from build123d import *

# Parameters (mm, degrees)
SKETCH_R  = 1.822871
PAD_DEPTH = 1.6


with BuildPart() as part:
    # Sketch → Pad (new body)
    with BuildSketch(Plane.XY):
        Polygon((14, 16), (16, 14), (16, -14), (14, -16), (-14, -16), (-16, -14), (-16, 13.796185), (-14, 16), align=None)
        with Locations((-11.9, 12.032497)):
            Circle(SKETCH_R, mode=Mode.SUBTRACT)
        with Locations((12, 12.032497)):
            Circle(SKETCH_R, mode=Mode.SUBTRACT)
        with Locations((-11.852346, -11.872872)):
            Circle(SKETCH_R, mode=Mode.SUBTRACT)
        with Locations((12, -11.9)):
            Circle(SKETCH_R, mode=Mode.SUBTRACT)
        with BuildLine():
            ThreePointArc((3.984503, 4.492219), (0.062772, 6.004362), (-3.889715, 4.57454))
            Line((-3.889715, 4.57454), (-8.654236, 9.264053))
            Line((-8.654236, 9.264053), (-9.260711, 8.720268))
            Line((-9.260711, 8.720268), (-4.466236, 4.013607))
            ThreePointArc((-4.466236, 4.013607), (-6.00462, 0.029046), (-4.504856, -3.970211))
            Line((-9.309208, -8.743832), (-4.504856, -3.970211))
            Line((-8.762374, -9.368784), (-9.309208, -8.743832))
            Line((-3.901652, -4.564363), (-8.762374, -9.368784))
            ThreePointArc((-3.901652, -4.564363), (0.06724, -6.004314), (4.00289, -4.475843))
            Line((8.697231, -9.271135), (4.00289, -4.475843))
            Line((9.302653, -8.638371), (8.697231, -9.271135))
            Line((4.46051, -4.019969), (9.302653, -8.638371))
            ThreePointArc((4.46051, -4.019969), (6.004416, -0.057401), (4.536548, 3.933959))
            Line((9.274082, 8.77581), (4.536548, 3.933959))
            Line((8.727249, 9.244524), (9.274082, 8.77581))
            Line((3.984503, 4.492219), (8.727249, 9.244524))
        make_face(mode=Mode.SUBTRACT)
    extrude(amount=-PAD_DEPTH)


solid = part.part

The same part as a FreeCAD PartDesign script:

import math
import FreeCAD as App
import Part
import Sketcher
from FreeCAD import Vector

doc = App.newDocument("Part")
body = doc.addObject("PartDesign::Body", "Body")

sketch1 = body.newObject("Sketcher::SketchObject", "Sketch")
sketch1.AttachmentSupport = (doc.getObject("XY_Plane"), [""])
sketch1.MapMode = "FlatFace"
sketch1.addGeometry(Part.LineSegment(Vector(16, 14, 0), Vector(14, 16, 0)), False)
sketch1.addGeometry(Part.LineSegment(Vector(14, 16, 0), Vector(-14, 16, 0)), False)
sketch1.addGeometry(Part.LineSegment(Vector(-14, 16, 0), Vector(-16, 13.8, 0)), False)
sketch1.addGeometry(Part.LineSegment(Vector(-16, 13.8, 0), Vector(-16, -14, 0)), False)
sketch1.addGeometry(Part.LineSegment(Vector(-16, -14, 0), Vector(-14, -16, 0)), False)
sketch1.addGeometry(Part.LineSegment(Vector(-14, -16, 0), Vector(14, -16, 0)), False)
sketch1.addGeometry(Part.LineSegment(Vector(14, -16, 0), Vector(16, -14, 0)), False)
sketch1.addGeometry(Part.LineSegment(Vector(16, -14, 0), Vector(16, 14, 0)), False)
sketch1.addGeometry(Part.Circle(Vector(12, -11.9, 0), Vector(0, 0, 1), 1.8), False)
sketch1.addGeometry(Part.Circle(Vector(-11.9, -11.9, 0), Vector(0, 0, 1), 1.8), False)
sketch1.addGeometry(Part.LineSegment(Vector(4, 4.5, 0), Vector(8.7, 9.2, 0)), False)
sketch1.addGeometry(Part.LineSegment(Vector(8.7, 9.2, 0), Vector(9.3, 8.8, 0)), False)
sketch1.addGeometry(Part.LineSegment(Vector(9.3, 8.8, 0), Vector(4.5, 3.9, 0)), False)
sketch1.addGeometry(Part.ArcOfCircle(Part.Circle(Vector(0, 0, 0), Vector(0, 0, 1), 6), math.radians(-42), math.radians(41)), False)
sketch1.addGeometry(Part.LineSegment(Vector(4.5, -4, 0), Vector(9.3, -8.6, 0)), False)
sketch1.addGeometry(Part.LineSegment(Vector(9.3, -8.6, 0), Vector(8.7, -9.3, 0)), False)
sketch1.addGeometry(Part.LineSegment(Vector(8.7, -9.3, 0), Vector(4, -4.5, 0)), False)
sketch1.addGeometry(Part.ArcOfCircle(Part.Circle(Vector(0, 0, 0), Vector(0, 0, 1), 6), math.radians(-131), math.radians(-48)), False)
sketch1.addGeometry(Part.LineSegment(Vector(-3.9, -4.6, 0), Vector(-8.8, -9.4, 0)), False)
sketch1.addGeometry(Part.LineSegment(Vector(-8.8, -9.4, 0), Vector(-9.3, -8.7, 0)), False)
sketch1.addGeometry(Part.LineSegment(Vector(-9.3, -8.7, 0), Vector(-4.5, -4, 0)), False)
sketch1.addGeometry(Part.ArcOfCircle(Part.Circle(Vector(0, 0, 0), Vector(0, 0, 1), 6), math.radians(138), math.radians(221)), False)
sketch1.addGeometry(Part.LineSegment(Vector(-4.5, 4, 0), Vector(-9.3, 8.7, 0)), False)
sketch1.addGeometry(Part.LineSegment(Vector(-9.3, 8.7, 0), Vector(-8.7, 9.3, 0)), False)
sketch1.addGeometry(Part.LineSegment(Vector(-8.7, 9.3, 0), Vector(-3.9, 4.6, 0)), False)
sketch1.addGeometry(Part.ArcOfCircle(Part.Circle(Vector(0, 0, 0), Vector(0, 0, 1), 6), math.radians(48), math.radians(130)), False)
sketch1.addGeometry(Part.Circle(Vector(12, 12, 0), Vector(0, 0, 1), 1.8), False)
sketch1.addGeometry(Part.Circle(Vector(-11.9, 12, 0), Vector(0, 0, 1), 1.8), False)
sketch1.addConstraint(Sketcher.Constraint("Coincident", 0, 2, 1, 1))
sketch1.addConstraint(Sketcher.Constraint("Coincident", 1, 2, 2, 1))
sketch1.addConstraint(Sketcher.Constraint("Coincident", 2, 2, 3, 1))
sketch1.addConstraint(Sketcher.Constraint("Coincident", 3, 2, 4, 1))
sketch1.addConstraint(Sketcher.Constraint("Coincident", 4, 2, 5, 1))
sketch1.addConstraint(Sketcher.Constraint("Coincident", 5, 2, 6, 1))
sketch1.addConstraint(Sketcher.Constraint("Coincident", 6, 2, 7, 1))
sketch1.addConstraint(Sketcher.Constraint("Coincident", 7, 2, 0, 1))
sketch1.addConstraint(Sketcher.Constraint("Coincident", 10, 2, 11, 1))
sketch1.addConstraint(Sketcher.Constraint("Coincident", 11, 2, 12, 1))
sketch1.addConstraint(Sketcher.Constraint("Coincident", 12, 2, 13, 2))
sketch1.addConstraint(Sketcher.Constraint("Coincident", 13, 1, 14, 1))
sketch1.addConstraint(Sketcher.Constraint("Coincident", 14, 2, 15, 1))
sketch1.addConstraint(Sketcher.Constraint("Coincident", 15, 2, 16, 1))
sketch1.addConstraint(Sketcher.Constraint("Coincident", 16, 2, 17, 2))
sketch1.addConstraint(Sketcher.Constraint("Coincident", 17, 1, 18, 1))
sketch1.addConstraint(Sketcher.Constraint("Coincident", 18, 2, 19, 1))
sketch1.addConstraint(Sketcher.Constraint("Coincident", 19, 2, 20, 1))
sketch1.addConstraint(Sketcher.Constraint("Coincident", 20, 2, 21, 2))
sketch1.addConstraint(Sketcher.Constraint("Coincident", 21, 1, 22, 1))
sketch1.addConstraint(Sketcher.Constraint("Coincident", 22, 2, 23, 1))
sketch1.addConstraint(Sketcher.Constraint("Coincident", 23, 2, 24, 1))
sketch1.addConstraint(Sketcher.Constraint("Coincident", 24, 2, 25, 2))
sketch1.addConstraint(Sketcher.Constraint("Coincident", 25, 1, 10, 1))
sketch1.addConstraint(Sketcher.Constraint("Horizontal", 1))
sketch1.addConstraint(Sketcher.Constraint("Vertical", 3))
sketch1.addConstraint(Sketcher.Constraint("Horizontal", 5))
sketch1.addConstraint(Sketcher.Constraint("Vertical", 7))
sketch1.addConstraint(Sketcher.Constraint("Coincident", 13, 3, -1, 1))
sketch1.addConstraint(Sketcher.Constraint("Coincident", 17, 3, -1, 1))
sketch1.addConstraint(Sketcher.Constraint("Coincident", 21, 3, -1, 1))
sketch1.addConstraint(Sketcher.Constraint("Coincident", 25, 3, -1, 1))
sketch1.addConstraint(Sketcher.Constraint("Equal", 8, 9))
sketch1.addConstraint(Sketcher.Constraint("Equal", 13, 17))
sketch1.addConstraint(Sketcher.Constraint("Equal", 13, 21))
sketch1.addConstraint(Sketcher.Constraint("Equal", 21, 25))
sketch1.addConstraint(Sketcher.Constraint("Equal", 9, 26))
sketch1.addConstraint(Sketcher.Constraint("Equal", 26, 27))
sketch1.addConstraint(Sketcher.Constraint("Symmetric", 0, 2, 4, 2, -1, 1))
sketch1.addConstraint(Sketcher.Constraint("Symmetric", 3, 2, 7, 2, -1, 1))
sketch1.addConstraint(Sketcher.Constraint("Perpendicular", 4, 6))
sketch1.addConstraint(Sketcher.Constraint("Horizontal", 26, 3, 27, 3))
sketch1.addConstraint(Sketcher.Constraint("Horizontal", 3, 2, 6, 2))
sketch1.addConstraint(Sketcher.Constraint("Vertical", 8, 3, 26, 3))
sketch1.addConstraint(Sketcher.Constraint("Vertical", 1, 2, 4, 2))
sketch1.addConstraint(Sketcher.Constraint("Vertical", 0, 2, 5, 2))
sketch1.addConstraint(Sketcher.Constraint("Equal", 5, 7))
sketch1.addConstraint(Sketcher.Constraint("DistanceX", 1, 2, 1, 1, 28.0))
sketch1.addConstraint(Sketcher.Constraint("DistanceX", -1, 1, 8, 3, 12.0))
sketch1.addConstraint(Sketcher.Constraint("DistanceY", -1, 1, 0, 2, 16.0))
sketch1.addConstraint(Sketcher.Constraint("DistanceY", 8, 3, -1, 1, 11.9))
sketch1.addConstraint(Sketcher.Constraint("DistanceX", 27, 3, -1, 1, 11.9))
sketch1.addConstraint(Sketcher.Constraint("Diameter", 8, 3.645742))
sketch1.addConstraint(Sketcher.Constraint("Radius", 13, 6.004688))
sketch1.addConstraint(Sketcher.Constraint("DistanceX", 23, 2, 21, 1, 4.188))
sketch1.addConstraint(Sketcher.Constraint("DistanceY", 17, 3, 26, 3, 12.0325))
sketch1.addConstraint(Sketcher.Constraint("DistanceX", 12, 2, 10, 2, 4.190701))
sketch1.addConstraint(Sketcher.Constraint("DistanceX", 13, 3, 25, 1, 3.984501))
sketch1.addConstraint(Sketcher.Constraint("Distance", 10, 6.714018))
sketch1.addConstraint(Sketcher.Constraint("Distance", 11, 0.720222))
sketch1.addConstraint(Sketcher.Constraint("Distance", 12, 6.77405))
sketch1.addConstraint(Sketcher.Constraint("Distance", 24, 6.685222))
sketch1.addConstraint(Sketcher.Constraint("DistanceY", 3, 2, 3, 1, 27.796185))
sketch1.addConstraint(Sketcher.Constraint("DistanceY", 9, 3, -1, 1, 11.872872))
sketch1.addConstraint(Sketcher.Constraint("DistanceX", -1, 1, 10, 2, 8.727249))
sketch1.addConstraint(Sketcher.Constraint("DistanceX", -1, 1, 13, 1, 4.46051))
sketch1.addConstraint(Sketcher.Constraint("DistanceY", 14, 2, -1, 1, 8.638371))
sketch1.addConstraint(Sketcher.Constraint("DistanceX", -1, 1, 15, 2, 8.697231))
sketch1.addConstraint(Sketcher.Constraint("DistanceX", -1, 1, 16, 2, 4.00289))
sketch1.addConstraint(Sketcher.Constraint("DistanceY", 19, 2, -1, 1, 8.743832))
sketch1.addConstraint(Sketcher.Constraint("DistanceY", 20, 2, -1, 1, 3.970211))
sketch1.addConstraint(Sketcher.Constraint("DistanceX", 22, 2, -1, 1, 9.260711))
sketch1.addConstraint(Sketcher.Constraint("DistanceY", -1, 1, 22, 2, 8.720268))
sketch1.addConstraint(Sketcher.Constraint("DistanceY", -1, 1, 24, 2, 4.57454))
sketch1.addConstraint(Sketcher.Constraint("DistanceX", 15, 2, 14, 2, 0.605422))
sketch1.addConstraint(Sketcher.Constraint("DistanceY", 17, 1, 17, 3, 4.56436))
sketch1.addConstraint(Sketcher.Constraint("DistanceX", 18, 2, 17, 1, 4.860722))
sketch1.addConstraint(Sketcher.Constraint("DistanceY", 18, 2, 17, 1, 4.804421))
sketch1.addConstraint(Sketcher.Constraint("DistanceX", 9, 3, 19, 2, 2.543138))
sketch1.addConstraint(Sketcher.Constraint("DistanceY", 17, 3, 21, 1, 4.01361))
sketch1.addConstraint(Sketcher.Constraint("Distance", 15, 0.875743))
sketch1.addConstraint(Sketcher.Constraint("Distance", 19, 0.830417))
pad1 = body.newObject("PartDesign::Pad", "Pad")
pad1.Profile = sketch1
pad1.Length = 1.6
pad1.Reversed = True

doc.recompute()
